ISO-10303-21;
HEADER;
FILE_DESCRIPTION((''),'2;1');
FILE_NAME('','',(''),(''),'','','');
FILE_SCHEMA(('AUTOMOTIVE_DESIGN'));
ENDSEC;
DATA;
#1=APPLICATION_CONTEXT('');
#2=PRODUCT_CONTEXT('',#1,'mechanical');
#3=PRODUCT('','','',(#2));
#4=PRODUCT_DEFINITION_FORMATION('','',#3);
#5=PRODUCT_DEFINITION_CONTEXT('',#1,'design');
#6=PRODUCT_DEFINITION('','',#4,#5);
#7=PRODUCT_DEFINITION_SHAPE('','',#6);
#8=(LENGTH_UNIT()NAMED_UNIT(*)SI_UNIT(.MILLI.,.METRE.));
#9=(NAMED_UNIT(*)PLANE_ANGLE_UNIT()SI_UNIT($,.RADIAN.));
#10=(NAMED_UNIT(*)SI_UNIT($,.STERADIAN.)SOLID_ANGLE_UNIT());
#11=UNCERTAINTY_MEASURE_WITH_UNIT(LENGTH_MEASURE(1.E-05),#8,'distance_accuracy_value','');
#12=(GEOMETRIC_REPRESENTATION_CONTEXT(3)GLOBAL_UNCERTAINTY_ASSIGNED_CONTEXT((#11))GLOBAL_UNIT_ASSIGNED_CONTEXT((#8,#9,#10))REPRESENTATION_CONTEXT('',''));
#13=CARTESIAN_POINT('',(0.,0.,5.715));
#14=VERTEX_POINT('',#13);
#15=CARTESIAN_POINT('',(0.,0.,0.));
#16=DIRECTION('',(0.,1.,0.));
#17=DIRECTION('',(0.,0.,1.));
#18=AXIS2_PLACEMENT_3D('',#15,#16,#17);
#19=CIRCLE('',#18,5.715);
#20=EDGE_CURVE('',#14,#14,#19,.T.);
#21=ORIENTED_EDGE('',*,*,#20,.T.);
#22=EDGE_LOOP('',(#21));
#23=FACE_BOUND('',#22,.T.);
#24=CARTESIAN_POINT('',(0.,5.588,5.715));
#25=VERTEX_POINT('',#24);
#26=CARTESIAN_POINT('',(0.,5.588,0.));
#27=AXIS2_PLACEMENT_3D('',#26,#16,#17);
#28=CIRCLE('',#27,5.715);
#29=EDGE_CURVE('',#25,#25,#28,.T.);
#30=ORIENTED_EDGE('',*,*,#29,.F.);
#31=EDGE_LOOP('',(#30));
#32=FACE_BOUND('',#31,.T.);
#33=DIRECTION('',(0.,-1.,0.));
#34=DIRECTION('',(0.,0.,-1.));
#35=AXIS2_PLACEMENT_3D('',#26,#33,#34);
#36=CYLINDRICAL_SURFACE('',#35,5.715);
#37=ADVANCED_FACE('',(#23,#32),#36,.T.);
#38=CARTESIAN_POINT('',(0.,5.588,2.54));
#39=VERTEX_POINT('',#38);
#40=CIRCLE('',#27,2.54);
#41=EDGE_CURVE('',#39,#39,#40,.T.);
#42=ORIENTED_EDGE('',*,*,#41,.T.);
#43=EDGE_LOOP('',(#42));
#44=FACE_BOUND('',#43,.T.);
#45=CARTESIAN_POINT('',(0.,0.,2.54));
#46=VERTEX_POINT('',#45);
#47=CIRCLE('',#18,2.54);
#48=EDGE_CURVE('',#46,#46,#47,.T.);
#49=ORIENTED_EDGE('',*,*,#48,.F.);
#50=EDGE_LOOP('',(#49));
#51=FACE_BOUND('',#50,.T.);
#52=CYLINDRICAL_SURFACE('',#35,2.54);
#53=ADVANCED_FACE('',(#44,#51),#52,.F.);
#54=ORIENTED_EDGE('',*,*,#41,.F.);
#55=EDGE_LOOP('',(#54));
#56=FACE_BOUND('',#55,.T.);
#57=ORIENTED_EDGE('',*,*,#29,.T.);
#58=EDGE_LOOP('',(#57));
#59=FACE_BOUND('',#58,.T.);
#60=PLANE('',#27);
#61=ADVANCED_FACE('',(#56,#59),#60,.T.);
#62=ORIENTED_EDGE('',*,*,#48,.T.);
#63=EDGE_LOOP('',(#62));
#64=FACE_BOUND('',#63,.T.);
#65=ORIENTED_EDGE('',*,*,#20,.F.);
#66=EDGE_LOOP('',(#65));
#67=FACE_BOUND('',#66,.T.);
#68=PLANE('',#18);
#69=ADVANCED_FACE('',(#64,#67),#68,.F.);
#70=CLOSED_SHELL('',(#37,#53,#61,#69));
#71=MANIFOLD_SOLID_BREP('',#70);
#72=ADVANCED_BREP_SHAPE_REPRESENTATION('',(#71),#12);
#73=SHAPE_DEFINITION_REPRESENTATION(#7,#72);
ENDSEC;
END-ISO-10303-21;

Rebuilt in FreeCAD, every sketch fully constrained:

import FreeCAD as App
import Part
import Sketcher

V = App.Vector
Q = App.Units.Quantity

doc = App.newDocument("Part")
body = doc.addObject("PartDesign::Body", "Body")

# Sketch on XZ plane
sketch1 = body.newObject("Sketcher::SketchObject", "Sketch")
sketch1.AttachmentSupport = (doc.getObject("XZ_Plane"), [""])
sketch1.MapMode = "FlatFace"
sketch1.addGeometry(Part.Circle(V(0, 0, 0), V(0, 0, 1), 5.7), False)
sketch1.addGeometry(Part.Circle(V(0, 0, 0), V(0, 0, 1), 2.5), False)
sketch1.addConstraint(Sketcher.Constraint("Coincident", 0, 3, -1, 1))
sketch1.addConstraint(Sketcher.Constraint("Coincident", 1, 3, -1, 1))
sketch1.addConstraint(Sketcher.Constraint("Diameter", 1, Q("0.2 in")))
sketch1.addConstraint(Sketcher.Constraint("Diameter", 0, Q("0.45 in")))
pad1 = body.newObject("PartDesign::Pad", "Pad")
pad1.Profile = sketch1
pad1.Length = Q("0.22 in")
pad1.Reversed = True

doc.recompute()
